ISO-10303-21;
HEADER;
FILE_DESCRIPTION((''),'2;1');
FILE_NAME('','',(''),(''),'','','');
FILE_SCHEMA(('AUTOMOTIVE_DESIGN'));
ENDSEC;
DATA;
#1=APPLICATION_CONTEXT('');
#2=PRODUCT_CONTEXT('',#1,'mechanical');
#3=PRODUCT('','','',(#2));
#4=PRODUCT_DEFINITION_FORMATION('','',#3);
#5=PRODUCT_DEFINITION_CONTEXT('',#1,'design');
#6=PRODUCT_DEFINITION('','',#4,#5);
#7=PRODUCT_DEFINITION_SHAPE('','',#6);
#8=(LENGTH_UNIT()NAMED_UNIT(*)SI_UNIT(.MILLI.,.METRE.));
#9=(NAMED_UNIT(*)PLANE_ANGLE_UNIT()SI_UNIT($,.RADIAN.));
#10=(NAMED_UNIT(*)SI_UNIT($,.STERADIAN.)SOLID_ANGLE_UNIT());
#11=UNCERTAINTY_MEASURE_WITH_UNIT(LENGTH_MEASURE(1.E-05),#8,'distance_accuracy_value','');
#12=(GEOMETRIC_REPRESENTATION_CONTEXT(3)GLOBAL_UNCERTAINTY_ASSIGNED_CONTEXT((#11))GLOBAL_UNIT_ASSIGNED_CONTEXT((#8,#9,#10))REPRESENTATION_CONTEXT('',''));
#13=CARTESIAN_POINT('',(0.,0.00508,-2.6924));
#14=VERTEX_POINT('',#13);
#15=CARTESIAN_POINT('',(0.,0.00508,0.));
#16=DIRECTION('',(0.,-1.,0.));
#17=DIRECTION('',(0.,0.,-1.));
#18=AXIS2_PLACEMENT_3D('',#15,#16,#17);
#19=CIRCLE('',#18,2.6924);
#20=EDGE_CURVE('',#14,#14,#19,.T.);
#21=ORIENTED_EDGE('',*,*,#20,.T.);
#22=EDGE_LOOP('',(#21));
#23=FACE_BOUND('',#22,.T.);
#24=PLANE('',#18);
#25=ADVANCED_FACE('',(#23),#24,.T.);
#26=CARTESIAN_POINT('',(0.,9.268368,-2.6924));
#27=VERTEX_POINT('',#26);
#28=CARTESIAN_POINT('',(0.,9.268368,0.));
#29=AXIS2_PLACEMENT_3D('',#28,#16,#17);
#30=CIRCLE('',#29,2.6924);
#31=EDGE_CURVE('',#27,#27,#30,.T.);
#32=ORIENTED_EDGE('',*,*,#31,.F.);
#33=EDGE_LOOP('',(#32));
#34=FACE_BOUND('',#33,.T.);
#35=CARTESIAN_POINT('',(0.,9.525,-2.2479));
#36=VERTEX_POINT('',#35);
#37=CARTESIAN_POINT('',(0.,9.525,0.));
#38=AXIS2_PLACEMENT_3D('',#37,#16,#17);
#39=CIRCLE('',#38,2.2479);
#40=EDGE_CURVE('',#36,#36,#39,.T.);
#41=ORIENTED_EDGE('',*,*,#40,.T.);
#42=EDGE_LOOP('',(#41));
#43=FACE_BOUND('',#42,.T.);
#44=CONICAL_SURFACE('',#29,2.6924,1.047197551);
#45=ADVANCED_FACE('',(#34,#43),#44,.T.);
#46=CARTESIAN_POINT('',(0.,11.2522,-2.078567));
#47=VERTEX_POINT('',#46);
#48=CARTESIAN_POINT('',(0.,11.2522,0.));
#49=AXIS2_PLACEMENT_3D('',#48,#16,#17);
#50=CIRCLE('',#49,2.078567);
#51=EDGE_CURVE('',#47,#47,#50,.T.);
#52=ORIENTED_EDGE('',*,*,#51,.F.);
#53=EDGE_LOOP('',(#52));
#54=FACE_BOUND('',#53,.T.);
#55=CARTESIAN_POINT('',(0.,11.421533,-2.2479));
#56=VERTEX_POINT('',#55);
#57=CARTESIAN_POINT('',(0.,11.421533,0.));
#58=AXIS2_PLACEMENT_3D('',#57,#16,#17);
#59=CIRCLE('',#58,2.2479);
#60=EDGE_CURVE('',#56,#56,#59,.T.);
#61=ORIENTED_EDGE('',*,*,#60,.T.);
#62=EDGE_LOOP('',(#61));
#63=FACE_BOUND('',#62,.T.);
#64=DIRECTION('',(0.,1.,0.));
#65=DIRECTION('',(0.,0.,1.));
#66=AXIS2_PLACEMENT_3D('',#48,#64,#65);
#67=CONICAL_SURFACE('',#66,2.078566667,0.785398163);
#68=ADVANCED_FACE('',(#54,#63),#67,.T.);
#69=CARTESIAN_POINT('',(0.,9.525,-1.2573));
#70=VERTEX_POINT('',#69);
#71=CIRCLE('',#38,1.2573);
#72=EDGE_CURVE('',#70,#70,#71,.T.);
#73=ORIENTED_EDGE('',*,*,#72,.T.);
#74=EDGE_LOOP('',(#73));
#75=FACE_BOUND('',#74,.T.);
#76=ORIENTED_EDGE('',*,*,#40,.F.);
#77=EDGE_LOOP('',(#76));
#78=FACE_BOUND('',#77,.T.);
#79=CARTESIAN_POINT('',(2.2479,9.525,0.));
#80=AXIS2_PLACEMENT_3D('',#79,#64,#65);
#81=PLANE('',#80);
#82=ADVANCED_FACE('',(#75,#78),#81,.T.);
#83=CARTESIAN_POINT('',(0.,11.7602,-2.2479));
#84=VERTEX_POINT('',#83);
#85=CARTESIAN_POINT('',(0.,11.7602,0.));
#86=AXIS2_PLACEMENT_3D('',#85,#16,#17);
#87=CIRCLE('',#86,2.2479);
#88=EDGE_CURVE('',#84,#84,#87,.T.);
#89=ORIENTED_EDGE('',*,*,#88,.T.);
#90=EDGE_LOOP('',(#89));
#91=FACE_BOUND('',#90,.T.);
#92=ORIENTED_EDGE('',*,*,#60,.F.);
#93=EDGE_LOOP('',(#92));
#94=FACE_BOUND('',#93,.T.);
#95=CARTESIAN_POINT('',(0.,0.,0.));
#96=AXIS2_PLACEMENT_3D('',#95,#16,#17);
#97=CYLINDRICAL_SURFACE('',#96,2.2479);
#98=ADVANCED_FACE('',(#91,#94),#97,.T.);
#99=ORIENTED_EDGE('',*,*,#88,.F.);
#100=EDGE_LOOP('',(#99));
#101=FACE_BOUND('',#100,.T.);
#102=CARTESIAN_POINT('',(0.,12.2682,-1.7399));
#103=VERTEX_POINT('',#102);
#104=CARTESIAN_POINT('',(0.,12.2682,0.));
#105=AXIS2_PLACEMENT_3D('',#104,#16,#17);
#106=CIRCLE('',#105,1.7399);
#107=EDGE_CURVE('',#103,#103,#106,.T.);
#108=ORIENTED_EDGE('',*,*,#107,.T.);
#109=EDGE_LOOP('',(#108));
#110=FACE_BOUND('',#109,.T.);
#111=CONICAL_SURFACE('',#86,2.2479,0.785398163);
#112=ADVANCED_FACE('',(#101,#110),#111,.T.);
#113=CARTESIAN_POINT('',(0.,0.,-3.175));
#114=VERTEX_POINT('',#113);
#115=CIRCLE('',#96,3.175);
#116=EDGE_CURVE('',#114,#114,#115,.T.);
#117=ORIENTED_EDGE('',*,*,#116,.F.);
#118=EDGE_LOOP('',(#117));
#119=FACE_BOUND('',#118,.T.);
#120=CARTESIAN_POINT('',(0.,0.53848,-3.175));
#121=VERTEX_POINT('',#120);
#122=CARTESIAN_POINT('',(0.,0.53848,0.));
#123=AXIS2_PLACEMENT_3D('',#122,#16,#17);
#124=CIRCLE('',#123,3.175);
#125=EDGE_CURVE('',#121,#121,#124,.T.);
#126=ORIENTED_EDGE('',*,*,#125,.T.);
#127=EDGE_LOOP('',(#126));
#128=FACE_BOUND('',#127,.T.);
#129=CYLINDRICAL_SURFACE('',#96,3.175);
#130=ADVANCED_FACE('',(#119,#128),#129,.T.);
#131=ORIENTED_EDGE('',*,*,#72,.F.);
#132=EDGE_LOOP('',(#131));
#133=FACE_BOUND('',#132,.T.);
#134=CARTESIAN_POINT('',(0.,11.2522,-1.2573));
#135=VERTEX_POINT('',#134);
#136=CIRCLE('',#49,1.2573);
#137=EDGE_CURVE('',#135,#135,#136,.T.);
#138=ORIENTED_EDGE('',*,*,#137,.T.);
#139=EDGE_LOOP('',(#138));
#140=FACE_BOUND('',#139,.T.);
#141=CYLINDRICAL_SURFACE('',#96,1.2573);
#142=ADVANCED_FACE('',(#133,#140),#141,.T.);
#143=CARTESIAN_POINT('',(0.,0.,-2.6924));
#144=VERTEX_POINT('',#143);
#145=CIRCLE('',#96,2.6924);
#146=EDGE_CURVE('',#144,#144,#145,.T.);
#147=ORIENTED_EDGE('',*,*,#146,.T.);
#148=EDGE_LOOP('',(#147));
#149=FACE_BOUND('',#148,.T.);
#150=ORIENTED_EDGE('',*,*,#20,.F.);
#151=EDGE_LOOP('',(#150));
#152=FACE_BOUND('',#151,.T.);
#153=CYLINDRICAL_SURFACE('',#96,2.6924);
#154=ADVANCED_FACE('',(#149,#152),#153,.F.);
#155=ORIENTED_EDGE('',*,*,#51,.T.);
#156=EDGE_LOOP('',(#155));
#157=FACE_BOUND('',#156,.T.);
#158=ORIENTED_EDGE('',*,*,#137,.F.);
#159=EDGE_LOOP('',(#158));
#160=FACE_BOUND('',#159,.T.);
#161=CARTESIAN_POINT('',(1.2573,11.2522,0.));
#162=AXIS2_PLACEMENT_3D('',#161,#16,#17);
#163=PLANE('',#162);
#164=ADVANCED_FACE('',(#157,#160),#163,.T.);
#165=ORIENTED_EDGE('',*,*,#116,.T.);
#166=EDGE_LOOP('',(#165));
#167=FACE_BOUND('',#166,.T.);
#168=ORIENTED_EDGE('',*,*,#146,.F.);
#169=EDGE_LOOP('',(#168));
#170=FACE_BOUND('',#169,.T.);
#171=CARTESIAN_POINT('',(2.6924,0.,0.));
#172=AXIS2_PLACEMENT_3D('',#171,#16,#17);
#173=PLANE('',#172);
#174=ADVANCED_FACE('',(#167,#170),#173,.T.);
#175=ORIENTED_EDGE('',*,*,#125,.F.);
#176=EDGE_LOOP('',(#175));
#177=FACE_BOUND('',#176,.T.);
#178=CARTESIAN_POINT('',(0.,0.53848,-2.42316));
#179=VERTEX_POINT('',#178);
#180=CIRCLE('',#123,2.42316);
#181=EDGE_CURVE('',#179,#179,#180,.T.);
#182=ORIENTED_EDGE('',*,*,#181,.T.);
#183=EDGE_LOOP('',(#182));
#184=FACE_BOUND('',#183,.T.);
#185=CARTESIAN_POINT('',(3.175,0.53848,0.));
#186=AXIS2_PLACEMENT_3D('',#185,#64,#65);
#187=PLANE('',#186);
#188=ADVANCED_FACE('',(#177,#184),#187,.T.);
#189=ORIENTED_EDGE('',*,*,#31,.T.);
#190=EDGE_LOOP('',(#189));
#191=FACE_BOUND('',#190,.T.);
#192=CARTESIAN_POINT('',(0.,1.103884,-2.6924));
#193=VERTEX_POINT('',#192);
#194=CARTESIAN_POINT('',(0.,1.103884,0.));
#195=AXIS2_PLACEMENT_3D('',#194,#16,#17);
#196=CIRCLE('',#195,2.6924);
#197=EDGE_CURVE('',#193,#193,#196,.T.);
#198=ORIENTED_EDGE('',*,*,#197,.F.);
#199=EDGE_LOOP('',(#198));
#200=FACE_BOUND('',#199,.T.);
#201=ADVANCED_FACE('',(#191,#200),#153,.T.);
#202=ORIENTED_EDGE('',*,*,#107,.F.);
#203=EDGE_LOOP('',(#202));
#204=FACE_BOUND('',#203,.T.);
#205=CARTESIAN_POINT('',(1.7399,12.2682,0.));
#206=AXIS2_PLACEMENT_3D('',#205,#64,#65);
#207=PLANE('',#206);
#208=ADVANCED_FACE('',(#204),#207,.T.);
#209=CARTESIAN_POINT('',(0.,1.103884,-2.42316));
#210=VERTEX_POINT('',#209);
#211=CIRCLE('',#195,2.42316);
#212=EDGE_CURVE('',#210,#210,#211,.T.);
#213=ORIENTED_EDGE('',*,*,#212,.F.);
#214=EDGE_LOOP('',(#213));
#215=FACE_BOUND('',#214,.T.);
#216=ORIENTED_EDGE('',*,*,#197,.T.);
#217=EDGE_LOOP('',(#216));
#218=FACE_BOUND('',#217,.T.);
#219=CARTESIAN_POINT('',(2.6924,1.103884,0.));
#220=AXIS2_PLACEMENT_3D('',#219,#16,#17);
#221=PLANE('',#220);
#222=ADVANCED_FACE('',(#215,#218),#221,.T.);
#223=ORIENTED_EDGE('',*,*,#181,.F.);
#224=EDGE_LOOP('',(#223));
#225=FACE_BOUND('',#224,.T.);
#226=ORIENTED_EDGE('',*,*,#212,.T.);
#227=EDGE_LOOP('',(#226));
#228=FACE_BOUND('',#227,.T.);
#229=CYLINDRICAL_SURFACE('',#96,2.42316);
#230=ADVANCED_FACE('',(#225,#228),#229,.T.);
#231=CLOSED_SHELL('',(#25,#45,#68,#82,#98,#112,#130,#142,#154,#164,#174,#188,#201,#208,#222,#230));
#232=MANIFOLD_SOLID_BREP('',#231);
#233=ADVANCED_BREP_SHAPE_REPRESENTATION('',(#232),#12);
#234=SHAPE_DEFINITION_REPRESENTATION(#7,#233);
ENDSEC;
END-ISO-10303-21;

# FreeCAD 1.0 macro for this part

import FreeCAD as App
import Part
import Sketcher
from FreeCAD import Vector
Q = App.Units.Quantity

doc = App.newDocument("Part")
body = doc.addObject("PartDesign::Body", "Body")

# Sketch on XY plane
sketch1 = body.newObject("Sketcher::SketchObject", "Sketch")
sketch1.AttachmentSupport = (doc.getObject("XY_Plane"), [""])
sketch1.MapMode = "FlatFace"
sketch1.addGeometry([
    Part.LineSegment(Vector(2.692, 0, 0), Vector(3.175, 0, 0)),  # 0
    Part.LineSegment(Vector(3.175, 0, 0), Vector(3.175, 0.538, 0)),  # 1
    Part.LineSegment(Vector(3.175, 0.538, 0), Vector(2.423, 0.538, 0)),  # 2
    Part.LineSegment(Vector(2.423, 0.538, 0), Vector(2.423, 1.104, 0)),  # 3
    Part.LineSegment(Vector(2.423, 1.104, 0), Vector(2.692, 1.104, 0)),  # 4
    Part.LineSegment(Vector(2.692, 1.104, 0), Vector(2.692, 9.268, 0)),  # 5
    Part.LineSegment(Vector(2.692, 9.268, 0), Vector(2.248, 9.525, 0)),  # 6
    Part.LineSegment(Vector(2.248, 9.525, 0), Vector(1.257, 9.525, 0)),  # 7
    Part.LineSegment(Vector(1.257, 9.525, 0), Vector(1.257, 11.252, 0)),  # 8
    Part.LineSegment(Vector(1.257, 11.252, 0), Vector(2.079, 11.252, 0)),  # 9
    Part.LineSegment(Vector(2.079, 11.252, 0), Vector(2.248, 11.422, 0)),  # 10
    Part.LineSegment(Vector(2.248, 11.422, 0), Vector(2.248, 11.76, 0)),  # 11
    Part.LineSegment(Vector(2.248, 11.76, 0), Vector(1.74, 12.268, 0)),  # 12
    Part.LineSegment(Vector(1.74, 12.268, 0), Vector(0, 12.268, 0)),  # 13
    Part.LineSegment(Vector(0, 12.268, 0), Vector(0, 0.005, 0)),  # 14
    Part.LineSegment(Vector(0, 0.005, 0), Vector(2.692, 0.005, 0)),  # 15
    Part.LineSegment(Vector(2.692, 0.005, 0), Vector(2.692, 0, 0)),  # 16
], False)
sketch1.addConstraint([
    Sketcher.Constraint("Coincident", 0, 2, 1, 1),
    Sketcher.Constraint("Coincident", 1, 2, 2, 1),
    Sketcher.Constraint("Coincident", 2, 2, 3, 1),
    Sketcher.Constraint("Coincident", 3, 2, 4, 1),
    Sketcher.Constraint("Coincident", 4, 2, 5, 1),
    Sketcher.Constraint("Coincident", 5, 2, 6, 1),
    Sketcher.Constraint("Coincident", 6, 2, 7, 1),
    Sketcher.Constraint("Coincident", 7, 2, 8, 1),
    Sketcher.Constraint("Coincident", 8, 2, 9, 1),
    Sketcher.Constraint("Coincident", 9, 2, 10, 1),
    Sketcher.Constraint("Coincident", 10, 2, 11, 1),
    Sketcher.Constraint("Coincident", 11, 2, 12, 1),
    Sketcher.Constraint("Coincident", 12, 2, 13, 1),
    Sketcher.Constraint("Coincident", 13, 2, 14, 1),
    Sketcher.Constraint("Coincident", 14, 2, 15, 1),
    Sketcher.Constraint("Coincident", 15, 2, 16, 1),
    Sketcher.Constraint("Coincident", 16, 2, 0, 1),
    Sketcher.Constraint("Horizontal", 0),
    Sketcher.Constraint("Vertical", 1),
    Sketcher.Constraint("Horizontal", 2),
    Sketcher.Constraint("Vertical", 3),
    Sketcher.Constraint("Horizontal", 4),
    Sketcher.Constraint("Vertical", 5),
    Sketcher.Constraint("Horizontal", 7),
    Sketcher.Constraint("Vertical", 8),
    Sketcher.Constraint("Horizontal", 9),
    Sketcher.Constraint("Vertical", 11),
    Sketcher.Constraint("Horizontal", 13),
    Sketcher.Constraint("Vertical", 14),
    Sketcher.Constraint("Horizontal", 15),
    Sketcher.Constraint("Vertical", 16),
    Sketcher.Constraint("PointOnObject", 0, 2, -1),
    Sketcher.Constraint("PointOnObject", 13, 2, -2),
    Sketcher.Constraint("Perpendicular", 10, 12),
    Sketcher.Constraint("Vertical", 6, 2, 10, 2),
    Sketcher.Constraint("Vertical", 5, 2, 15, 2),
    Sketcher.Constraint("Angle", 6, Q("150 deg")),
    Sketcher.Constraint("Angle", 10, Q("45 deg")),
    Sketcher.Constraint("DistanceX", 0, 1, 0, 2, Q("0.019 in")),
    Sketcher.Constraint("DistanceX", 7, 2, 7, 1, Q("0.039 in")),
    Sketcher.Constraint("DistanceX", 15, 1, 15, 2, Q("0.106 in")),
    Sketcher.Constraint("DistanceY", 8, 1, 8, 2, Q("0.068 in")),
    Sketcher.Constraint("DistanceY", 9, 2, 11, 2, Q("0.02 in")),
    Sketcher.Constraint("DistanceX", 12, 2, 11, 2, Q("0.02 in")),
    Sketcher.Constraint("DistanceX", 2, 2, 2, 1, Q("0.0296 in")),
    Sketcher.Constraint("DistanceX", 13, 2, 13, 1, Q("0.0685 in")),
    Sketcher.Constraint("DistanceY", 1, 1, 1, 2, Q("0.0212 in")),
    Sketcher.Constraint("DistanceY", 14, 2, 14, 1, Q("0.4828 in")),
    Sketcher.Constraint("DistanceY", 16, 2, 16, 1, Q("0.0002 in")),
    Sketcher.Constraint("DistanceX", 9, 1, 9, 2, 0.821267),
    Sketcher.Constraint("DistanceY", 3, 1, 3, 2, 0.565404),
])
revolution = body.newObject("PartDesign::Revolution", "Revolution")
revolution.Profile = sketch1
revolution.ReferenceAxis = (sketch1, ["V_Axis"])
revolution.Angle = 360

doc.recompute()
